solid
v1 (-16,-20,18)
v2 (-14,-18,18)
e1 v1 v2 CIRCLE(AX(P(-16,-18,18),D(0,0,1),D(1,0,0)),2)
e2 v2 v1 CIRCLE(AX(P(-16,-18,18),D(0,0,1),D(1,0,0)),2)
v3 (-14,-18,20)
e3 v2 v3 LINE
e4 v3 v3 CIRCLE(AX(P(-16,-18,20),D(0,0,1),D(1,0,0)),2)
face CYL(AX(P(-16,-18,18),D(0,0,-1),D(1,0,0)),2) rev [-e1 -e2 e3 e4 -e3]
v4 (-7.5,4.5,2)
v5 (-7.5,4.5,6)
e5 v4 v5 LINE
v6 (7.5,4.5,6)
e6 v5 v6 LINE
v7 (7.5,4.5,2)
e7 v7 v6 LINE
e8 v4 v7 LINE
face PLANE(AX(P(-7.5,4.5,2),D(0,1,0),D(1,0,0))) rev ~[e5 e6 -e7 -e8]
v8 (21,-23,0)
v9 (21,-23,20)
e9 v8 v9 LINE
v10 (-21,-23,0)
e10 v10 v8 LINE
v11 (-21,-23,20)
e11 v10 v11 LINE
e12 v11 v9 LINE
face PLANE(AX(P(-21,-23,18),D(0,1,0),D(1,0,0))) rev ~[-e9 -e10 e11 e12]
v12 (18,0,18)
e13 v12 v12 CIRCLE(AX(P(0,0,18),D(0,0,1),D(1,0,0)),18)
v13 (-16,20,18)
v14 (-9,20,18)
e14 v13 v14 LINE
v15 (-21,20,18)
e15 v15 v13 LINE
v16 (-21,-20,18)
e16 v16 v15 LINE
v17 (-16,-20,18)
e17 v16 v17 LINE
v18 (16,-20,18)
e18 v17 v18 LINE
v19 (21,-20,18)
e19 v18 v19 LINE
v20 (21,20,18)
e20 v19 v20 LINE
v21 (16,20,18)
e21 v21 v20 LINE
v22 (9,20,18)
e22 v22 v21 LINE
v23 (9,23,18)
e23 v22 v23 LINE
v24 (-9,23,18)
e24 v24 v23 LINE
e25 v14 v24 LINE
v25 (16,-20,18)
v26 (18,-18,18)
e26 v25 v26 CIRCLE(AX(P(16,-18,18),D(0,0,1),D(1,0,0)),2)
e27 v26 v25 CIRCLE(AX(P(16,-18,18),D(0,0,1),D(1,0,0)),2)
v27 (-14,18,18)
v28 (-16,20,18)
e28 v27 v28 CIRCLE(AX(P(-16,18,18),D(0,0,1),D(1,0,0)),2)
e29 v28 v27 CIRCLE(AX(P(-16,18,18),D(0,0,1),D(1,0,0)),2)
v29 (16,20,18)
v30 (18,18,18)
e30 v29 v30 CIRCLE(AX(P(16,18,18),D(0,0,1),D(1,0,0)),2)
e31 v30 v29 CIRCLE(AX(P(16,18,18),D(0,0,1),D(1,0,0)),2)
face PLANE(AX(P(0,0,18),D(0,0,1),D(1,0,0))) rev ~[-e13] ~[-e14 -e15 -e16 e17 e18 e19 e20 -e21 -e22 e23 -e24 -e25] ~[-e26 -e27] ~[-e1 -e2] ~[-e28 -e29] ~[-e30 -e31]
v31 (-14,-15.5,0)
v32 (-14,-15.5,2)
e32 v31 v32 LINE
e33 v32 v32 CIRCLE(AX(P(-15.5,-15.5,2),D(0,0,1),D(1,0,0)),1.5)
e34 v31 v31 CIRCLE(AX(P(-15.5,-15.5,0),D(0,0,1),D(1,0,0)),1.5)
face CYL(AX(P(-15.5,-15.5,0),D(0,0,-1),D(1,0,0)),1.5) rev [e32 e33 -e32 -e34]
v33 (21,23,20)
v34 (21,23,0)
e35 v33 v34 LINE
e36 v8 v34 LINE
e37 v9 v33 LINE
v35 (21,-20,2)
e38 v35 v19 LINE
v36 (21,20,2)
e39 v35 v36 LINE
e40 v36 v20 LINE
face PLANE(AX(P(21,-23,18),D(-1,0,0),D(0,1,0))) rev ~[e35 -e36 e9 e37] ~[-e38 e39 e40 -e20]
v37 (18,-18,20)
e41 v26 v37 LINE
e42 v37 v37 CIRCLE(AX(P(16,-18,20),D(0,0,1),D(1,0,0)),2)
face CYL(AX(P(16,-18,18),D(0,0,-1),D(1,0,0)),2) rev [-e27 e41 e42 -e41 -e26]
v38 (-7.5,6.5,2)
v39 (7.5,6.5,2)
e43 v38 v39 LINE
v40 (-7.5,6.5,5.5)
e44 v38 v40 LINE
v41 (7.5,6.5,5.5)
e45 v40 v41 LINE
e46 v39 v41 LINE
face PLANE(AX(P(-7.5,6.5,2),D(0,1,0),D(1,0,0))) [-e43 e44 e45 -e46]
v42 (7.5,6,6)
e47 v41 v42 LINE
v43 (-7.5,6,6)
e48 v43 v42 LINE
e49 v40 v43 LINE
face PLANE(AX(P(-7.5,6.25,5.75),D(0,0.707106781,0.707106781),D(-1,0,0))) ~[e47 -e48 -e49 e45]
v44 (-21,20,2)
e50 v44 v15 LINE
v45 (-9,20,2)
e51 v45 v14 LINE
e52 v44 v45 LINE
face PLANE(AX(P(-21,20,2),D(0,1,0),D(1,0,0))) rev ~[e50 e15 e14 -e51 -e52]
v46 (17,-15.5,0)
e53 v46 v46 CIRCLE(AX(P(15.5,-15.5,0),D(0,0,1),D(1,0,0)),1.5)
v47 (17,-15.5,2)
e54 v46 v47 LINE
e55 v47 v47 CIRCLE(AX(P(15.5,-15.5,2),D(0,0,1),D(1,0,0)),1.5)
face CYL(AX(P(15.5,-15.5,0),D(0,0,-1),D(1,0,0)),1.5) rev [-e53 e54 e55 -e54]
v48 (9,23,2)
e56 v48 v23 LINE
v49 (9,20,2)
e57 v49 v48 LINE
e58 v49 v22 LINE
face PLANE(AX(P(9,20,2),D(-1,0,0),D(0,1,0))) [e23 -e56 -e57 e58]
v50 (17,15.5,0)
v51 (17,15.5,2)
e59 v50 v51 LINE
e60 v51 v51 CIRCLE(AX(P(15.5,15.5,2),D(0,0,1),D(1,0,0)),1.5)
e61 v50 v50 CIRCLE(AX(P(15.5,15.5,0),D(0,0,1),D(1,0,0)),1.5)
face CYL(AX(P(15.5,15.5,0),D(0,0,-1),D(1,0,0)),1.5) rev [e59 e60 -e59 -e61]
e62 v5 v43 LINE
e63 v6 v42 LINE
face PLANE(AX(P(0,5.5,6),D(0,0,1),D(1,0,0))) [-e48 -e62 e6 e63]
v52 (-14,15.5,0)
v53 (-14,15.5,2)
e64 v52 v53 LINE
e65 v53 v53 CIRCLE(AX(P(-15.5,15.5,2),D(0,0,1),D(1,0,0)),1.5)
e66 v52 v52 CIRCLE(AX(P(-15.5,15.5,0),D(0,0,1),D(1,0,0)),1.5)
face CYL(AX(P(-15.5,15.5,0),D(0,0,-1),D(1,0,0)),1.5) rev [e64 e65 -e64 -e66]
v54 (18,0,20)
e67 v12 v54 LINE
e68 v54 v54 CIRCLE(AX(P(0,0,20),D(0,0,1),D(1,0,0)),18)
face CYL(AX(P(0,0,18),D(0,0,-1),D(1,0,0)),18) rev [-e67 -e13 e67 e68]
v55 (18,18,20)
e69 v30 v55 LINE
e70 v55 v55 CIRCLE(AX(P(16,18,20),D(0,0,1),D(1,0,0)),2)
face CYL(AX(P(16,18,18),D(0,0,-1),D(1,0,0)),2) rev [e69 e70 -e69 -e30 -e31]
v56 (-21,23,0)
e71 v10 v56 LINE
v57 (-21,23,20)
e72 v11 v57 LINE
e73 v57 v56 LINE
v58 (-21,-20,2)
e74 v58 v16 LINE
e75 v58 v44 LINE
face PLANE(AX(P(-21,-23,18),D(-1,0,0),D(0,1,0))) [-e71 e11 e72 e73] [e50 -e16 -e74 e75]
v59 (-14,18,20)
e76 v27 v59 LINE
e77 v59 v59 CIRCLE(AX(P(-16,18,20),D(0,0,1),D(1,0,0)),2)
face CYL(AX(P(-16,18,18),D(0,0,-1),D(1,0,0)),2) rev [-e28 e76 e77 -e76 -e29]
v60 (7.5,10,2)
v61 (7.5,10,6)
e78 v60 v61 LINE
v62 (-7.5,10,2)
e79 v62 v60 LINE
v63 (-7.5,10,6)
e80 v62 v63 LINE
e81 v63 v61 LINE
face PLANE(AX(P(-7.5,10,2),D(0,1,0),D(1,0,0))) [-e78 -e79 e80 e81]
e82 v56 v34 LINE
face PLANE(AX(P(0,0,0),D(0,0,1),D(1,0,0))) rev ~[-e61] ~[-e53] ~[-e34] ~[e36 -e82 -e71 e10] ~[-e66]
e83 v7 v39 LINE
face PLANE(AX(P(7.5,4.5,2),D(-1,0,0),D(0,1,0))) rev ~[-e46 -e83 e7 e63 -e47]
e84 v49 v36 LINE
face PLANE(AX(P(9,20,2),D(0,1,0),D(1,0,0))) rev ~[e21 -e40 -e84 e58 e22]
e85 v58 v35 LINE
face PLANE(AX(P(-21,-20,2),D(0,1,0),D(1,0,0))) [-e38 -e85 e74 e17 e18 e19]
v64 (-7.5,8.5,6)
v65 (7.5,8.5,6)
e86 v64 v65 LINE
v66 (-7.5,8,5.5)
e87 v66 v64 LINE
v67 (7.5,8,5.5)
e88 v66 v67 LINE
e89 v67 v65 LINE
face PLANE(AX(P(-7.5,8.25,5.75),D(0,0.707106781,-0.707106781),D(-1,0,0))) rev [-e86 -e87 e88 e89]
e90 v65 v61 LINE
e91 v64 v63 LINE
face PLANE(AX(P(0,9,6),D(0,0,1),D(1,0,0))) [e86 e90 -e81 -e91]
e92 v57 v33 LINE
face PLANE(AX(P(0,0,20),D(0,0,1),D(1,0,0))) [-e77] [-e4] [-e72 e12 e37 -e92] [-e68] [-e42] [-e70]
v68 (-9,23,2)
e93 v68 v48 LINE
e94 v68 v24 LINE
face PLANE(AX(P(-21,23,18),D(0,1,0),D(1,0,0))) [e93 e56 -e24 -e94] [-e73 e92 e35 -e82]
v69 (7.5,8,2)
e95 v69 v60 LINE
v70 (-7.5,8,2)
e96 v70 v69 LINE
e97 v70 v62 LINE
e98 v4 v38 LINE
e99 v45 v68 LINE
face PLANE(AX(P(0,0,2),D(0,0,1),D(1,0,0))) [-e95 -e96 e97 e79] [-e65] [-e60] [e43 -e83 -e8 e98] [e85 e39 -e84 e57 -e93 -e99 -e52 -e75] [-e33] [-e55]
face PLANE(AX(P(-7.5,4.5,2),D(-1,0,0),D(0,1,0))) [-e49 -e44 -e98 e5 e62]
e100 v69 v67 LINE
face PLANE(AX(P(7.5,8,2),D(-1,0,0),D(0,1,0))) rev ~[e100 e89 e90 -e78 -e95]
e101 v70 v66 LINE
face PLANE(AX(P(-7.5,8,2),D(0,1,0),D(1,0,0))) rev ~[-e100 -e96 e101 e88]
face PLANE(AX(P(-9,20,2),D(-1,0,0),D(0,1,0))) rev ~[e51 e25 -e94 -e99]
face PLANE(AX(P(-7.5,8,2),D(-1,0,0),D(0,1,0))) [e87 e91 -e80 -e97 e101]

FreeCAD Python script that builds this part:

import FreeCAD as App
import Part
import Sketcher

V = App.Vector


def edges_at(feature, points):
    """Names of the edges that pass closest to the given points."""
    edges = feature.Shape.Edges
    near = lambda p: min(range(len(edges)), key=lambda i: edges[i].distToShape(Part.Vertex(*p))[0])
    return sorted({f"Edge{near(p) + 1}" for p in points})

doc = App.newDocument("Part")
body = doc.addObject("PartDesign::Body", "Body")

sketch1 = body.newObject("Sketcher::SketchObject", "Sketch")
sketch1.AttachmentSupport = (doc.getObject("XY_Plane"), [""])
sketch1.MapMode = "FlatFace"
sketch1.addGeometry(Part.LineSegment(V(-21, 23, 0), V(-21, -23, 0)), False)
sketch1.addGeometry(Part.LineSegment(V(-21, -23, 0), V(21, -23, 0)), False)
sketch1.addGeometry(Part.LineSegment(V(21, -23, 0), V(21, 23, 0)), False)
sketch1.addGeometry(Part.LineSegment(V(21, 23, 0), V(-21, 23, 0)), False)
sketch1.addGeometry(Part.Circle(V(-15.5, -15.5, 0), V(0, 0, 1), 1.5), False)
sketch1.addGeometry(Part.Circle(V(15.5, -15.5, 0), V(0, 0, 1), 1.5), False)
sketch1.addGeometry(Part.Circle(V(-15.5, 15.5, 0), V(0, 0, 1), 1.5), False)
sketch1.addGeometry(Part.Circle(V(15.5, 15.5, 0), V(0, 0, 1), 1.5), False)
sketch1.addConstraint(Sketcher.Constraint("Coincident", 0, 2, 1, 1))
sketch1.addConstraint(Sketcher.Constraint("Coincident", 1, 2, 2, 1))
sketch1.addConstraint(Sketcher.Constraint("Coincident", 2, 2, 3, 1))
sketch1.addConstraint(Sketcher.Constraint("Coincident", 3, 2, 0, 1))
sketch1.addConstraint(Sketcher.Constraint("Vertical", 0))
sketch1.addConstraint(Sketcher.Constraint("Horizontal", 1))
sketch1.addConstraint(Sketcher.Constraint("Vertical", 2))
sketch1.addConstraint(Sketcher.Constraint("Horizontal", 3))
sketch1.addConstraint(Sketcher.Constraint("Equal", 4, 5))
sketch1.addConstraint(Sketcher.Constraint("Equal", 5, 6))
sketch1.addConstraint(Sketcher.Constraint("Equal", 6, 7))
sketch1.addConstraint(Sketcher.Constraint("Symmetric", 5, 3, 6, 3, -1, 1))
sketch1.addConstraint(Sketcher.Constraint("Symmetric", 4, 3, 7, 3, -1, 1))
sketch1.addConstraint(Sketcher.Constraint("Symmetric", 0, 2, 2, 2, -1, 1))
sketch1.addConstraint(Sketcher.Constraint("Symmetric", 4, 3, 5, 3, -2))
sketch1.addConstraint(Sketcher.Constraint("Diameter", 4, 3.0))
sketch1.addConstraint(Sketcher.Constraint("DistanceX", 1, 1, 1, 2, 42.0))
sketch1.addConstraint(Sketcher.Constraint("DistanceY", 0, 2, 0, 1, 46.0))
sketch1.addConstraint(Sketcher.Constraint("DistanceX", 4, 3, 5, 3, 31.0))
sketch1.addConstraint(Sketcher.Constraint("DistanceY", 4, 3, 6, 3, 31.0))
pad1 = body.newObject("PartDesign::Pad", "Pad")
pad1.Profile = sketch1
pad1.Length = 2

sketch2 = body.newObject("Sketcher::SketchObject", "Sketch001")
sketch2.AttachmentSupport = (doc.getObject("XY_Plane"), [""])
sketch2.MapMode = "FlatFace"
sketch2.AttachmentOffset = App.Placement(V(0, 0, 2), App.Rotation())
sketch2.addGeometry(Part.LineSegment(V(9, 23, 0), V(9, 20, 0)), False)
sketch2.addGeometry(Part.LineSegment(V(9, 20, 0), V(21, 20, 0)), False)
sketch2.addGeometry(Part.LineSegment(V(21, 20, 0), V(21, 23, 0)), False)
sketch2.addGeometry(Part.LineSegment(V(21, 23, 0), V(9, 23, 0)), False)
sketch2.addGeometry(Part.LineSegment(V(-21, 23, 0), V(-21, 20, 0)), False)
sketch2.addGeometry(Part.LineSegment(V(-21, 20, 0), V(-9, 20, 0)), False)
sketch2.addGeometry(Part.LineSegment(V(-9, 20, 0), V(-9, 23, 0)), False)
sketch2.addGeometry(Part.LineSegment(V(-9, 23, 0), V(-21, 23, 0)), False)
sketch2.addGeometry(Part.LineSegment(V(-21, -20, 0), V(-21, -23, 0)), False)
sketch2.addGeometry(Part.LineSegment(V(-21, -23, 0), V(21, -23, 0)), False)
sketch2.addGeometry(Part.LineSegment(V(21, -23, 0), V(21, -20, 0)), False)
sketch2.addGeometry(Part.LineSegment(V(21, -20, 0), V(-21, -20, 0)), False)
sketch2.addConstraint(Sketcher.Constraint("Coincident", 0, 2, 1, 1))
sketch2.addConstraint(Sketcher.Constraint("Coincident", 1, 2, 2, 1))
sketch2.addConstraint(Sketcher.Constraint("Coincident", 2, 2, 3, 1))
sketch2.addConstraint(Sketcher.Constraint("Coincident", 3, 2, 0, 1))
sketch2.addConstraint(Sketcher.Constraint("Coincident", 4, 2, 5, 1))
sketch2.addConstraint(Sketcher.Constraint("Coincident", 5, 2, 6, 1))
sketch2.addConstraint(Sketcher.Constraint("Coincident", 6, 2, 7, 1))
sketch2.addConstraint(Sketcher.Constraint("Coincident", 7, 2, 4, 1))
sketch2.addConstraint(Sketcher.Constraint("Coincident", 8, 2, 9, 1))
sketch2.addConstraint(Sketcher.Constraint("Coincident", 9, 2, 10, 1))
sketch2.addConstraint(Sketcher.Constraint("Coincident", 10, 2, 11, 1))
sketch2.addConstraint(Sketcher.Constraint("Coincident", 11, 2, 8, 1))
sketch2.addConstraint(Sketcher.Constraint("Vertical", 0))
sketch2.addConstraint(Sketcher.Constraint("Horizontal", 1))
sketch2.addConstraint(Sketcher.Constraint("Vertical", 2))
sketch2.addConstraint(Sketcher.Constraint("Horizontal", 3))
sketch2.addConstraint(Sketcher.Constraint("Vertical", 4))
sketch2.addConstraint(Sketcher.Constraint("Horizontal", 5))
sketch2.addConstraint(Sketcher.Constraint("Vertical", 6))
sketch2.addConstraint(Sketcher.Constraint("Horizontal", 7))
sketch2.addConstraint(Sketcher.Constraint("Vertical", 8))
sketch2.addConstraint(Sketcher.Constraint("Horizontal", 9))
sketch2.addConstraint(Sketcher.Constraint("Vertical", 10))
sketch2.addConstraint(Sketcher.Constraint("Horizontal", 11))
sketch2.addConstraint(Sketcher.Constraint("Symmetric", 2, 2, 8, 2, -1, 1))
sketch2.addConstraint(Sketcher.Constraint("Symmetric", 7, 2, 9, 2, -1, 1))
sketch2.addConstraint(Sketcher.Constraint("Symmetric", 1, 2, 4, 2, -2))
sketch2.addConstraint(Sketcher.Constraint("Equal", 3, 5))
sketch2.addConstraint(Sketcher.Constraint("Equal", 6, 8))
sketch2.addConstraint(Sketcher.Constraint("DistanceX", 1, 1, 1, 2, 12.0))
sketch2.addConstraint(Sketcher.Constraint("DistanceX", 9, 1, 9, 2, 42.0))
sketch2.addConstraint(Sketcher.Constraint("DistanceY", 0, 2, 0, 1, 3.0))
sketch2.addConstraint(Sketcher.Constraint("DistanceY", -1, 1, 0, 2, 20.0))
pad2 = body.newObject("PartDesign::Pad", "Pad001")
pad2.Profile = sketch2
pad2.Length = 16

sketch3 = body.newObject("Sketcher::SketchObject", "Sketch002")
sketch3.AttachmentSupport = (doc.getObject("XY_Plane"), [""])
sketch3.MapMode = "FlatFace"
sketch3.AttachmentOffset = App.Placement(V(0, 0, 18), App.Rotation())
sketch3.addGeometry(Part.LineSegment(V(-21, 23, 0), V(-21, -23, 0)), False)
sketch3.addGeometry(Part.LineSegment(V(-21, -23, 0), V(21, -23, 0)), False)
sketch3.addGeometry(Part.LineSegment(V(21, -23, 0), V(21, 23, 0)), False)
sketch3.addGeometry(Part.LineSegment(V(21, 23, 0), V(-21, 23, 0)), False)
sketch3.addGeometry(Part.Circle(V(-16, -18, 0), V(0, 0, 1), 2), False)
sketch3.addGeometry(Part.Circle(V(16, -18, 0), V(0, 0, 1), 2), False)
sketch3.addGeometry(Part.Circle(V(-16, 18, 0), V(0, 0, 1), 2), False)
sketch3.addGeometry(Part.Circle(V(0, 0, 0), V(0, 0, 1), 18), False)
sketch3.addGeometry(Part.Circle(V(16, 18, 0), V(0, 0, 1), 2), False)
sketch3.addConstraint(Sketcher.Constraint("Coincident", 0, 2, 1, 1))
sketch3.addConstraint(Sketcher.Constraint("Coincident", 1, 2, 2, 1))
sketch3.addConstraint(Sketcher.Constraint("Coincident", 2, 2, 3, 1))
sketch3.addConstraint(Sketcher.Constraint("Coincident", 3, 2, 0, 1))
sketch3.addConstraint(Sketcher.Constraint("Vertical", 0))
sketch3.addConstraint(Sketcher.Constraint("Horizontal", 1))
sketch3.addConstraint(Sketcher.Constraint("Vertical", 2))
sketch3.addConstraint(Sketcher.Constraint("Horizontal", 3))
sketch3.addConstraint(Sketcher.Constraint("Coincident", 7, 3, -1, 1))
sketch3.addConstraint(Sketcher.Constraint("Equal", 4, 5))
sketch3.addConstraint(Sketcher.Constraint("Equal", 5, 6))
sketch3.addConstraint(Sketcher.Constraint("Equal", 6, 8))
sketch3.addConstraint(Sketcher.Constraint("Symmetric", 5, 3, 6, 3, -1, 1))
sketch3.addConstraint(Sketcher.Constraint("Symmetric", 4, 3, 8, 3, -1, 1))
sketch3.addConstraint(Sketcher.Constraint("Symmetric", 0, 2, 2, 2, -1, 1))
sketch3.addConstraint(Sketcher.Constraint("Symmetric", 4, 3, 5, 3, -2))
sketch3.addConstraint(Sketcher.Constraint("Diameter", 4, 4.0))
sketch3.addConstraint(Sketcher.Constraint("Diameter", 7, 36.0))
sketch3.addConstraint(Sketcher.Constraint("DistanceX", 1, 1, 1, 2, 42.0))
sketch3.addConstraint(Sketcher.Constraint("DistanceY", 0, 2, 0, 1, 46.0))
sketch3.addConstraint(Sketcher.Constraint("DistanceX", 4, 3, -1, 1, 16.0))
sketch3.addConstraint(Sketcher.Constraint("DistanceY", 4, 3, -1, 1, 18.0))
pad3 = body.newObject("PartDesign::Pad", "Pad002")
pad3.Profile = sketch3
pad3.Length = 2

sketch4 = body.newObject("Sketcher::SketchObject", "Sketch003")
sketch4.AttachmentSupport = (doc.getObject("XY_Plane"), [""])
sketch4.MapMode = "FlatFace"
sketch4.AttachmentOffset = App.Placement(V(0, 0, 2), App.Rotation())
sketch4.addGeometry(Part.LineSegment(V(-7.5, 10, 0), V(-7.5, 8, 0)), False)
sketch4.addGeometry(Part.LineSegment(V(-7.5, 8, 0), V(7.5, 8, 0)), False)
sketch4.addGeometry(Part.LineSegment(V(7.5, 8, 0), V(7.5, 10, 0)), False)
sketch4.addGeometry(Part.LineSegment(V(7.5, 10, 0), V(-7.5, 10, 0)), False)
sketch4.addGeometry(Part.LineSegment(V(-7.5, 6.5, 0), V(-7.5, 4.5, 0)), False)
sketch4.addGeometry(Part.LineSegment(V(-7.5, 4.5, 0), V(7.5, 4.5, 0)), False)
sketch4.addGeometry(Part.LineSegment(V(7.5, 4.5, 0), V(7.5, 6.5, 0)), False)
sketch4.addGeometry(Part.LineSegment(V(7.5, 6.5, 0), V(-7.5, 6.5, 0)), False)
sketch4.addConstraint(Sketcher.Constraint("Coincident", 0, 2, 1, 1))
sketch4.addConstraint(Sketcher.Constraint("Coincident", 1, 2, 2, 1))
sketch4.addConstraint(Sketcher.Constraint("Coincident", 2, 2, 3, 1))
sketch4.addConstraint(Sketcher.Constraint("Coincident", 3, 2, 0, 1))
sketch4.addConstraint(Sketcher.Constraint("Coincident", 4, 2, 5, 1))
sketch4.addConstraint(Sketcher.Constraint("Coincident", 5, 2, 6, 1))
sketch4.addConstraint(Sketcher.Constraint("Coincident", 6, 2, 7, 1))
sketch4.addConstraint(Sketcher.Constraint("Coincident", 7, 2, 4, 1))
sketch4.addConstraint(Sketcher.Constraint("Vertical", 0))
sketch4.addConstraint(Sketcher.Constraint("Horizontal", 1))
sketch4.addConstraint(Sketcher.Constraint("Vertical", 2))
sketch4.addConstraint(Sketcher.Constraint("Horizontal", 3))
sketch4.addConstraint(Sketcher.Constraint("Vertical", 4))
sketch4.addConstraint(Sketcher.Constraint("Horizontal", 5))
sketch4.addConstraint(Sketcher.Constraint("Vertical", 6))
sketch4.addConstraint(Sketcher.Constraint("Horizontal", 7))
sketch4.addConstraint(Sketcher.Constraint("Vertical", 3, 2, 4, 2))
sketch4.addConstraint(Sketcher.Constraint("Vertical", 2, 2, 5, 2))
sketch4.addConstraint(Sketcher.Constraint("Equal", 2, 4))
sketch4.addConstraint(Sketcher.Constraint("DistanceX", 1, 1, 1, 2, 15.0))
sketch4.addConstraint(Sketcher.Constraint("DistanceY", 0, 2, 0, 1, 2.0))
sketch4.addConstraint(Sketcher.Constraint("DistanceY", -1, 1, 0, 2, 8.0))
sketch4.addConstraint(Sketcher.Constraint("DistanceX", 0, 2, -1, 1, 7.5))
sketch4.addConstraint(Sketcher.Constraint("DistanceY", -1, 1, 4, 2, 4.5))
pad4 = body.newObject("PartDesign::Pad", "Pad003")
pad4.Profile = sketch4
pad4.Length = 4
doc.recompute()

chamfer = body.newObject("PartDesign::Chamfer", "Chamfer")
chamfer.Base = (pad4, edges_at(pad4, [(0, 8, 6), (0, 6.5, 6)]))
chamfer.Size = 0.5

doc.recompute()
